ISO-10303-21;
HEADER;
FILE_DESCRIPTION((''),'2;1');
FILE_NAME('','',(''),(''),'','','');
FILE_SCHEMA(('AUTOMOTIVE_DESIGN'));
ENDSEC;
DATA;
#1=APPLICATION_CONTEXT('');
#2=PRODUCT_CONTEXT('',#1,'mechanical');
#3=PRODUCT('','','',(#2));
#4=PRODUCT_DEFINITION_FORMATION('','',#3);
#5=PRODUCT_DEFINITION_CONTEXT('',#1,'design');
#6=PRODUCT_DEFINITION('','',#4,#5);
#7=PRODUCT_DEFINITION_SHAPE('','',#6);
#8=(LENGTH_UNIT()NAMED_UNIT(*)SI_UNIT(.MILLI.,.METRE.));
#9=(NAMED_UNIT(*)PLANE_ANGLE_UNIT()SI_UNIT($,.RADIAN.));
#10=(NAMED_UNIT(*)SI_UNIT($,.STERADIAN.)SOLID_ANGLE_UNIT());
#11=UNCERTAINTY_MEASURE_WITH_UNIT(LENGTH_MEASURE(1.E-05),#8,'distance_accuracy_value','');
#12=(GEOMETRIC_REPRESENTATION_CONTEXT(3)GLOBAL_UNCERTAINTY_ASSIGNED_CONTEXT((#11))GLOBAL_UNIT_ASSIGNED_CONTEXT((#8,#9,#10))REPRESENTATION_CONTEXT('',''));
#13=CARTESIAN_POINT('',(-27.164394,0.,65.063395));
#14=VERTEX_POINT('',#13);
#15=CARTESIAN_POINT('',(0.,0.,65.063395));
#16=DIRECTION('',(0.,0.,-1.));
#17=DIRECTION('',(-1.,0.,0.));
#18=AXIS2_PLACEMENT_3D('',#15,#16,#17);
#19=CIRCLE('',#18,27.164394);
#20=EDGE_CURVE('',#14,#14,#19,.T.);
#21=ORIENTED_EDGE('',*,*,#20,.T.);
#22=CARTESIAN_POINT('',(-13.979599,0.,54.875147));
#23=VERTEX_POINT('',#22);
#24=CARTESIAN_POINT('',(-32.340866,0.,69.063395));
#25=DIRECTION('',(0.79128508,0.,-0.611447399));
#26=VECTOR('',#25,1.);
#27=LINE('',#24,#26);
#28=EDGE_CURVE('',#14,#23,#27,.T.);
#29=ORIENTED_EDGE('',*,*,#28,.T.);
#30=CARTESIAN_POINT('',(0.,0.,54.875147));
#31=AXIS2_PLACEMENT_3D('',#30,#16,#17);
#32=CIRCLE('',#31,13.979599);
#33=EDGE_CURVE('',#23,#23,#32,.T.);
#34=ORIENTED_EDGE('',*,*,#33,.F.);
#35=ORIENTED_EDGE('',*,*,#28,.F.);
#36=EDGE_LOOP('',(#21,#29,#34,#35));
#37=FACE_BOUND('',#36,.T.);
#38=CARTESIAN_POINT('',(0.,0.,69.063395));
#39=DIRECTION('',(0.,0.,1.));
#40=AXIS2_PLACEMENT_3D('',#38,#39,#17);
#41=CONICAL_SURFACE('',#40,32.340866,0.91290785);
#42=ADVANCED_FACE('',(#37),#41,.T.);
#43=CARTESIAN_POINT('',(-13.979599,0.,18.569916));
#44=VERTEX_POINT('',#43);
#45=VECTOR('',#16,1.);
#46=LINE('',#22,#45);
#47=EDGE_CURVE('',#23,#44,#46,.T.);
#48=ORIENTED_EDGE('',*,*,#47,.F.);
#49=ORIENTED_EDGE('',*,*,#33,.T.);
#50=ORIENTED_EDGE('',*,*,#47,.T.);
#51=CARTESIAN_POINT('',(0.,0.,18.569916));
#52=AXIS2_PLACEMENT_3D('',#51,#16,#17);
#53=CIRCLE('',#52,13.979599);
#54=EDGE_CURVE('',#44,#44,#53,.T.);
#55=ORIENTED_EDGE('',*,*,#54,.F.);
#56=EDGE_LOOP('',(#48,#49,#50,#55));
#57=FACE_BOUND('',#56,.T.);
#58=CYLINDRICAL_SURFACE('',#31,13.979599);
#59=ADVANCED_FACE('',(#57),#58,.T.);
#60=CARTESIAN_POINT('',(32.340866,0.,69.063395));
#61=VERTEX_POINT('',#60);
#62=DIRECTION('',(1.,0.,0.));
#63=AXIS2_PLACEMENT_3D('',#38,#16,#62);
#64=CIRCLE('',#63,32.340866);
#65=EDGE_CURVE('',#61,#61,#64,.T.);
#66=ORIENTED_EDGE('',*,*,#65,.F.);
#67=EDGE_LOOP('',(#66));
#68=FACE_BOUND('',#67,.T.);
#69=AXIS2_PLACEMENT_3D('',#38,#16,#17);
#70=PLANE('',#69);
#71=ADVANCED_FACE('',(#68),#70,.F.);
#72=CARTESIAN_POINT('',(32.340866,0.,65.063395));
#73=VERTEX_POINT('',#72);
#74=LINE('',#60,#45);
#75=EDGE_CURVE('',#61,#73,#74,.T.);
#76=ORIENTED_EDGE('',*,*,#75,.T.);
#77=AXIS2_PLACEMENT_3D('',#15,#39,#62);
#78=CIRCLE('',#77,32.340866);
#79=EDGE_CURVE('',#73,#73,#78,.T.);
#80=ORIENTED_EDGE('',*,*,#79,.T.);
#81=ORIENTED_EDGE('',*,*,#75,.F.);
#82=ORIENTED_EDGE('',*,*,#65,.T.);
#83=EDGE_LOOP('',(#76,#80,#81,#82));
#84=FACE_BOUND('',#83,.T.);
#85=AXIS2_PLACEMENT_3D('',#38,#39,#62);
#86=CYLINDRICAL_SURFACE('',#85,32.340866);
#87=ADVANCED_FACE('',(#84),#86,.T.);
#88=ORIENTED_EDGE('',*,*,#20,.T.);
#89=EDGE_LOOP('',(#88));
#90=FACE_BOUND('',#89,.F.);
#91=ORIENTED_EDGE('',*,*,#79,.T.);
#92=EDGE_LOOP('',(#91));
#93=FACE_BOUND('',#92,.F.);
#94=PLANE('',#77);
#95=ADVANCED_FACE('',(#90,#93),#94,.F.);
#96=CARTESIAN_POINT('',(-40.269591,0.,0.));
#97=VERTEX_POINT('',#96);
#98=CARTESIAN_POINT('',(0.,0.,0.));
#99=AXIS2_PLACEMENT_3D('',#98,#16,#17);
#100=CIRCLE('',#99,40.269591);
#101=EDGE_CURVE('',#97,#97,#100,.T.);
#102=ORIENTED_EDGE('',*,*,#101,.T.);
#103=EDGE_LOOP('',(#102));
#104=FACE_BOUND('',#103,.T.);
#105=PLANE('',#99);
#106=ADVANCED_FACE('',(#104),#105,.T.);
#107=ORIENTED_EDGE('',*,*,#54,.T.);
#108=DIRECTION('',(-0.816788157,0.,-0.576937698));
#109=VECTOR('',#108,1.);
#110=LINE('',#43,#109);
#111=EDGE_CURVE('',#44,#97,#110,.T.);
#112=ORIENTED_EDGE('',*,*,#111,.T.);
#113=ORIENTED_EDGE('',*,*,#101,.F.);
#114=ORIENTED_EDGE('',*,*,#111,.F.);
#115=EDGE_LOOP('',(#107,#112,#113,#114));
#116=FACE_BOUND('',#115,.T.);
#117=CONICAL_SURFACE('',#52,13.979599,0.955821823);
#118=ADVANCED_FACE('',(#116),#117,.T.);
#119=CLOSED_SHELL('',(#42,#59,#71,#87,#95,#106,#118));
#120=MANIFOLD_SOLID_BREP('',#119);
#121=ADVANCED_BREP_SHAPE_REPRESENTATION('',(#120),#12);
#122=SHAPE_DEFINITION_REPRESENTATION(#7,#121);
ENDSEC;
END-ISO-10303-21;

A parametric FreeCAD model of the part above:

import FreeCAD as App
import Part
import Sketcher

V = App.Vector

doc = App.newDocument("Part")
body = doc.addObject("PartDesign::Body", "Body")

sketch1 = body.newObject("Sketcher::SketchObject", "Sketch")
sketch1.AttachmentSupport = (doc.getObject("XZ_Plane"), [""])
sketch1.MapMode = "FlatFace"
sketch1.addGeometry(Part.LineSegment(V(-13.979599, 18.569916, 0), V(-40.269591, 0, 0)), False)
sketch1.addGeometry(Part.LineSegment(V(-40.269591, 0, 0), V(0, 0, 0)), False)
sketch1.addGeometry(Part.LineSegment(V(0, 0, 0), V(0, 69.063395, 0)), False)
sketch1.addGeometry(Part.LineSegment(V(0, 69.063395, 0), V(-32.340866, 69.063395, 0)), False)
sketch1.addGeometry(Part.LineSegment(V(-32.340866, 69.063395, 0), V(-13.979599, 54.875147, 0)), False)
sketch1.addGeometry(Part.LineSegment(V(-13.979599, 54.875147, 0), V(-13.979599, 18.569916, 0)), False)
sketch1.addConstraint(Sketcher.Constraint("Coincident", 0, 2, 1, 1))
sketch1.addConstraint(Sketcher.Constraint("Coincident", 1, 2, 2, 1))
sketch1.addConstraint(Sketcher.Constraint("Coincident", 2, 2, 3, 1))
sketch1.addConstraint(Sketcher.Constraint("Coincident", 3, 2, 4, 1))
sketch1.addConstraint(Sketcher.Constraint("Coincident", 4, 2, 5, 1))
sketch1.addConstraint(Sketcher.Constraint("Coincident", 5, 2, 0, 1))
sketch1.addConstraint(Sketcher.Constraint("Horizontal", 1))
sketch1.addConstraint(Sketcher.Constraint("Vertical", 2))
sketch1.addConstraint(Sketcher.Constraint("Horizontal", 3))
sketch1.addConstraint(Sketcher.Constraint("Vertical", 5))
sketch1.addConstraint(Sketcher.Constraint("Coincident", 1, 2, -1, 1))
sketch1.addConstraint(Sketcher.Constraint("DistanceX", 1, 1, 1, 2, 40.269591))
sketch1.addConstraint(Sketcher.Constraint("DistanceY", 5, 2, 5, 1, 36.305231))
sketch1.addConstraint(Sketcher.Constraint("DistanceX", 4, 2, -1, 1, 13.979599))
sketch1.addConstraint(Sketcher.Constraint("Distance", 0, 32.187039))
sketch1.addConstraint(Sketcher.Constraint("DistanceX", 3, 2, 3, 1, 32.340866))
sketch1.addConstraint(Sketcher.Constraint("DistanceY", 2, 1, 2, 2, 69.063395))
revolution = body.newObject("PartDesign::Revolution", "Revolution")
revolution.Profile = sketch1
revolution.ReferenceAxis = (sketch1, ["V_Axis"])
revolution.Angle = 360

sketch2 = body.newObject("Sketcher::SketchObject", "Sketch001")
sketch2.AttachmentSupport = (doc.getObject("XY_Plane"), [""])
sketch2.MapMode = "FlatFace"
sketch2.AttachmentOffset = App.Placement(V(0, 0, 69.063395), App.Rotation())
sketch2.addGeometry(Part.Circle(V(0, 0, 0), V(0, 0, 1), 32.340866), False)
sketch2.addConstraint(Sketcher.Constraint("Coincident", 0, 3, -1, 1))
sketch2.addConstraint(Sketcher.Constraint("Diameter", 0, 64.681732))
pad1 = body.newObject("PartDesign::Pad", "Pad")
pad1.Profile = sketch2
pad1.Length = 4
pad1.Reversed = True

doc.recompute()
